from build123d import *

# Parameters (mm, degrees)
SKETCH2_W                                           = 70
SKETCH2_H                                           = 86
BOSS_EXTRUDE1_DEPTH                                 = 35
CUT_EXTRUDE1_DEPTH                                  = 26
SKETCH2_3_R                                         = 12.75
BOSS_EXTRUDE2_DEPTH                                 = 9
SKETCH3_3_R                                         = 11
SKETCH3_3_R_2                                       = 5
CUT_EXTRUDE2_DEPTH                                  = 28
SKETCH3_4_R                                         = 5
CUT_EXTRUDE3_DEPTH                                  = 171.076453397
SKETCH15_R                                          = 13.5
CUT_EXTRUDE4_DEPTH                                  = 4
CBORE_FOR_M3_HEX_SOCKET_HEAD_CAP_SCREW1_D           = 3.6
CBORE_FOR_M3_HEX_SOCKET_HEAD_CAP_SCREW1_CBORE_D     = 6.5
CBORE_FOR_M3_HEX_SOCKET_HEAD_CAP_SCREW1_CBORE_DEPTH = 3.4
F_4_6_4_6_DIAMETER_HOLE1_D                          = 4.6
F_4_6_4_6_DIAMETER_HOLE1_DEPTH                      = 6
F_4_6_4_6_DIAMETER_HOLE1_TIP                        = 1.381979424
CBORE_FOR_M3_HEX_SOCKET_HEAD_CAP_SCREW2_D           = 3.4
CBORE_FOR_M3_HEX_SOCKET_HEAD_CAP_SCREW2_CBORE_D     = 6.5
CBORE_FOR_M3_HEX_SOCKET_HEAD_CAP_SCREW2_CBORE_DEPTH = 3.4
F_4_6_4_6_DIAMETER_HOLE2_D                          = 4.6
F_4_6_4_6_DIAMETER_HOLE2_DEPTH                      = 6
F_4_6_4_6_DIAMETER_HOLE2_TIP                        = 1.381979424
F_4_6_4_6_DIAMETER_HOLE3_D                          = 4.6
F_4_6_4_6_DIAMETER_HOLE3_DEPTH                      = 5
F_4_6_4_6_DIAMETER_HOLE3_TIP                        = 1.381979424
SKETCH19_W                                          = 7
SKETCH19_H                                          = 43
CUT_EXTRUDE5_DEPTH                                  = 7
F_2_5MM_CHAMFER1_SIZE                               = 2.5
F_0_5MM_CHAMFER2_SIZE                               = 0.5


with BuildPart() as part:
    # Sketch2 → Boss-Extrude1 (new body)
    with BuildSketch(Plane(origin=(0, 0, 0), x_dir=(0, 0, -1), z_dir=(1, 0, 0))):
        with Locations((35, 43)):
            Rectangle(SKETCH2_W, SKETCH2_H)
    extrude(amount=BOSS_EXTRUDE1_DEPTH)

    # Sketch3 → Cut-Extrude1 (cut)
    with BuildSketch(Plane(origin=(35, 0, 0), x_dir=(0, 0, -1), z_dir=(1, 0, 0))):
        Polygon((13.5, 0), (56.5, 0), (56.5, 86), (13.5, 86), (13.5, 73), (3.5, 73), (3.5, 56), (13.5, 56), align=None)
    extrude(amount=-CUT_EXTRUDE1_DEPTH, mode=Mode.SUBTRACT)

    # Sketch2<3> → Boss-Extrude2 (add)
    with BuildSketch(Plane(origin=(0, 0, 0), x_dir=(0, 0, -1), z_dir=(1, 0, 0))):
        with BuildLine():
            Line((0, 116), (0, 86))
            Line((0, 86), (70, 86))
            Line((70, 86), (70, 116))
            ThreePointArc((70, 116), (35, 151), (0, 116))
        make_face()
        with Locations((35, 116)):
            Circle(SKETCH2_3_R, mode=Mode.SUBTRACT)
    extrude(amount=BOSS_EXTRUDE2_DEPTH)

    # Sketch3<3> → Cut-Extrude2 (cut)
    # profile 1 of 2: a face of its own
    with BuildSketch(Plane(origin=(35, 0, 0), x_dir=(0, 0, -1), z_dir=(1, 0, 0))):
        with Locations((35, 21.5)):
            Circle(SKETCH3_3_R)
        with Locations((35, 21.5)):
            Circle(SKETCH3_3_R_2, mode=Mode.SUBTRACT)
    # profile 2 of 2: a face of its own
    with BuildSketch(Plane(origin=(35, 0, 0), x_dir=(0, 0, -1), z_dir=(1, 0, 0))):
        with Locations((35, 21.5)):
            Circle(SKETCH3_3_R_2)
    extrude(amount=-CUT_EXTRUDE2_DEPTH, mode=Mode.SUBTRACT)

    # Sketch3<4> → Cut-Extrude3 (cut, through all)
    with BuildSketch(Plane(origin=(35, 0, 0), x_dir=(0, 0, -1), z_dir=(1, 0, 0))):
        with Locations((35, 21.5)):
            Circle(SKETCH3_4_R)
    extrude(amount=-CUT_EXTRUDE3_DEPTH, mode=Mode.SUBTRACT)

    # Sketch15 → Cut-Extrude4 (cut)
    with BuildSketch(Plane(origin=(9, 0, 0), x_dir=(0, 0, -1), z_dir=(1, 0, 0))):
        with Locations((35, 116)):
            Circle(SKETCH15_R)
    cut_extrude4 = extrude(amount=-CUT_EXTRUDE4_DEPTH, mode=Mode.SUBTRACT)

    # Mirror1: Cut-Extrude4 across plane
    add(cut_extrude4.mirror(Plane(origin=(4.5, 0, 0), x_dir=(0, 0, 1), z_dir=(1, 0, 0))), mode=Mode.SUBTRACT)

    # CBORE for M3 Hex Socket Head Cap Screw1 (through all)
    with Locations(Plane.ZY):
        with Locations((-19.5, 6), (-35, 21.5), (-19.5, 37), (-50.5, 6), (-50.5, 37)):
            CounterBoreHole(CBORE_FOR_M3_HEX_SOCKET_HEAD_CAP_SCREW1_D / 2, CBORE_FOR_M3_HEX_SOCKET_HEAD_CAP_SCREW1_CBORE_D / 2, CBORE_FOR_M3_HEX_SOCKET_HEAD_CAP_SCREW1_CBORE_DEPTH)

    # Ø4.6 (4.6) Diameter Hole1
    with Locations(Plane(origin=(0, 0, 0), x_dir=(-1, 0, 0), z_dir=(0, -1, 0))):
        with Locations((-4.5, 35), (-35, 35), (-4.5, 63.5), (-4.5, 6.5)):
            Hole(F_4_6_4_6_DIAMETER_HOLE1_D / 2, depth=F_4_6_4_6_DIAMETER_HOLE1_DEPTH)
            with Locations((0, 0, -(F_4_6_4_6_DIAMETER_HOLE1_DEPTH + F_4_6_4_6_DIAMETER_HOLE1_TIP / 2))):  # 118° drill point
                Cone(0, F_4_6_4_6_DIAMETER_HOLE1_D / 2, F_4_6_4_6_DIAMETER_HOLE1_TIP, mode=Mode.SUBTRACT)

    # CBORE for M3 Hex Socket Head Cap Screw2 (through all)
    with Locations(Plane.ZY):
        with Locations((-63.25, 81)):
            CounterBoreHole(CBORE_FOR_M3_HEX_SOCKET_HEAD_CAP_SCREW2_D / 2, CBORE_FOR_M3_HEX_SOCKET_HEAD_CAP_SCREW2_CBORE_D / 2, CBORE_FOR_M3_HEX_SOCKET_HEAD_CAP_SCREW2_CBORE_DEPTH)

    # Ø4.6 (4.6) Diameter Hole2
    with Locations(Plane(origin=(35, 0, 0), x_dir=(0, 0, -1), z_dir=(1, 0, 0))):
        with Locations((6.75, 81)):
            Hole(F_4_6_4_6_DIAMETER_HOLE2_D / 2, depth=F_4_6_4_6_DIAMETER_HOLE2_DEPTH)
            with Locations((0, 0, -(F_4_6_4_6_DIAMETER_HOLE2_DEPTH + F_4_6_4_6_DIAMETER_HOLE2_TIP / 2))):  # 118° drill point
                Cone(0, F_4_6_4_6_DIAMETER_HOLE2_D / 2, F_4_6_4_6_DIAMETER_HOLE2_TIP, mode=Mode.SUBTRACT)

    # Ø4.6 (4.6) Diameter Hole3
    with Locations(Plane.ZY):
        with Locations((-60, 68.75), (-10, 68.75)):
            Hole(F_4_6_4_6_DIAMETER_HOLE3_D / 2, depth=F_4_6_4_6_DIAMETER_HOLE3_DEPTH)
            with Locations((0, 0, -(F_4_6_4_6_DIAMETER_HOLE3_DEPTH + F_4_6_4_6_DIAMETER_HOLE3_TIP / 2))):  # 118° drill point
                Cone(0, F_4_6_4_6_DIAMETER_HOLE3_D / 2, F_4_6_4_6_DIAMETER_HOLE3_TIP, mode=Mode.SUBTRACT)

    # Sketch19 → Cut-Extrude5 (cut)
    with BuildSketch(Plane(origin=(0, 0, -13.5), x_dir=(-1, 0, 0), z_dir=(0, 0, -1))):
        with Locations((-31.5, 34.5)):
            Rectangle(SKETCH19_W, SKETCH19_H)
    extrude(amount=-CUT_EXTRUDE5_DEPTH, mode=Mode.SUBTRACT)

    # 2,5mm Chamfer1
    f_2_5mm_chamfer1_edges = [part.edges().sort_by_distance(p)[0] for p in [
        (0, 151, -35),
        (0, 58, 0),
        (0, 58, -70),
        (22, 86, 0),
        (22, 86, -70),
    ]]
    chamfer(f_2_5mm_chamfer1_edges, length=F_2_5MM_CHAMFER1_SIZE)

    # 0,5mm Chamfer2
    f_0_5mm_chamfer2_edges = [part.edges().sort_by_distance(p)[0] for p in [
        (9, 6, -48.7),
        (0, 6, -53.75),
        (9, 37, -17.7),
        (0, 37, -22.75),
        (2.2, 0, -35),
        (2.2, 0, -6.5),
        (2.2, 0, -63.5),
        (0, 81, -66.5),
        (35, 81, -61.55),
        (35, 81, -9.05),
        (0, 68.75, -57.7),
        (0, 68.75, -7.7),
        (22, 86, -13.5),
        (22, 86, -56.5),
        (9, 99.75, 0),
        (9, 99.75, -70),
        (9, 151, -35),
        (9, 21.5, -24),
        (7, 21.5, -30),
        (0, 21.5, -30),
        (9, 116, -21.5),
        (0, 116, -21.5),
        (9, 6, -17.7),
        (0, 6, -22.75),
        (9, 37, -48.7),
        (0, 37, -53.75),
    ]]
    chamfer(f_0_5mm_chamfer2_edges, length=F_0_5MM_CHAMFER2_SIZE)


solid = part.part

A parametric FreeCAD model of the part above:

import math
import FreeCAD as App
import Part
import Sketcher
Q = App.Units.Quantity


def edges_at(feature, points):
    """Names of the edges that pass closest to the given points."""
    edges = feature.Shape.Edges
    near = lambda p: min(range(len(edges)), key=lambda i: edges[i].distToShape(Part.Vertex(*p))[0])
    return sorted({f"Edge{near(p) + 1}" for p in points})


def add_polygon(sketch, points):
    """Adds a closed chain of lines whose ends are joined by coincident constraints."""
    first, n = sketch.GeometryCount, len(points)
    for a, b in zip(points, points[1:] + points[:1]):
        sketch.addGeometry(Part.LineSegment(App.Vector(*a, 0), App.Vector(*b, 0)), False)
    for i in range(n):
        sketch.addConstraint(Sketcher.Constraint("Coincident", first + i, 2, first + (i + 1) % n, 1))

doc = App.newDocument("Part")
body = doc.addObject("PartDesign::Body", "Body")

sketch1 = body.newObject("Sketcher::SketchObject", "Sketch")
sketch1.AttachmentSupport = (doc.getObject("YZ_Plane"), [""])
sketch1.MapMode = "FlatFace"
add_polygon(sketch1, [(86, 0), (0, 0), (0, -70), (86, -70)])
sketch1.addConstraint(Sketcher.Constraint("Horizontal", 0))
sketch1.addConstraint(Sketcher.Constraint("Vertical", 1))
sketch1.addConstraint(Sketcher.Constraint("Horizontal", 2))
sketch1.addConstraint(Sketcher.Constraint("Vertical", 3))
sketch1.addConstraint(Sketcher.Constraint("Coincident", 0, 2, -1, 1))
sketch1.addConstraint(Sketcher.Constraint("DistanceX", 0, 2, 0, 1, Q("86 mm")))
sketch1.addConstraint(Sketcher.Constraint("DistanceY", 1, 2, 1, 1, Q("70 mm")))
pad1 = body.newObject("PartDesign::Pad", "Pad")
pad1.Profile = sketch1
pad1.Length = 35

sketch2 = body.newObject("Sketcher::SketchObject", "Sketch001")
sketch2.AttachmentSupport = (doc.getObject("YZ_Plane"), [""])
sketch2.MapMode = "FlatFace"
sketch2.AttachmentOffset = App.Placement(App.Vector(0, 0, 35), App.Rotation())
add_polygon(sketch2, [(0, -14), (0, -56), (86, -56), (86, -14), (73, -14), (73, -4), (56, -4), (56, -14)])
sketch2.addConstraint(Sketcher.Constraint("Vertical", 0))
sketch2.addConstraint(Sketcher.Constraint("Horizontal", 1))
sketch2.addConstraint(Sketcher.Constraint("Vertical", 2))
sketch2.addConstraint(Sketcher.Constraint("Horizontal", 3))
sketch2.addConstraint(Sketcher.Constraint("Vertical", 4))
sketch2.addConstraint(Sketcher.Constraint("Horizontal", 5))
sketch2.addConstraint(Sketcher.Constraint("Vertical", 6))
sketch2.addConstraint(Sketcher.Constraint("Horizontal", 7))
sketch2.addConstraint(Sketcher.Constraint("PointOnObject", 0, 2, -2))
sketch2.addConstraint(Sketcher.Constraint("Horizontal", 3, 2, 6, 2))
sketch2.addConstraint(Sketcher.Constraint("DistanceX", 1, 1, 1, 2, Q("86 mm")))
sketch2.addConstraint(Sketcher.Constraint("DistanceX", 3, 2, 3, 1, Q("13 mm")))
sketch2.addConstraint(Sketcher.Constraint("DistanceX", 5, 2, 5, 1, Q("17 mm")))
sketch2.addConstraint(Sketcher.Constraint("DistanceY", 0, 2, 0, 1, Q("43 mm")))
sketch2.addConstraint(Sketcher.Constraint("DistanceY", 4, 1, 4, 2, Q("10 mm")))
sketch2.addConstraint(Sketcher.Constraint("DistanceY", 0, 2, -1, 1, Q("56.5 mm")))
pocket1 = body.newObject("PartDesign::Pocket", "Pocket")
pocket1.Profile = sketch2
pocket1.Length = 26

sketch3 = body.newObject("Sketcher::SketchObject", "Sketch002")
sketch3.AttachmentSupport = (doc.getObject("YZ_Plane"), [""])
sketch3.MapMode = "FlatFace"
sketch3.addGeometry(Part.LineSegment(App.Vector(116, 0, 0), App.Vector(86, 0, 0)), False)
sketch3.addGeometry(Part.LineSegment(App.Vector(86, 0, 0), App.Vector(86, -70, 0)), False)
sketch3.addGeometry(Part.LineSegment(App.Vector(86, -70, 0), App.Vector(116, -70, 0)), False)
sketch3.addGeometry(Part.ArcOfCircle(Part.Circle(App.Vector(116, -35, 0), App.Vector(0, 0, 1), 35), math.radians(-90), math.radians(90)), False)
sketch3.addGeometry(Part.Circle(App.Vector(116, -35, 0), App.Vector(0, 0, 1), 13), False)
sketch3.addConstraint(Sketcher.Constraint("Coincident", 0, 2, 1, 1))
sketch3.addConstraint(Sketcher.Constraint("Coincident", 1, 2, 2, 1))
sketch3.addConstraint(Sketcher.Constraint("Tangent", 2, 2, 3, 1))
sketch3.addConstraint(Sketcher.Constraint("Tangent", 3, 2, 0, 1))
sketch3.addConstraint(Sketcher.Constraint("Horizontal", 0))
sketch3.addConstraint(Sketcher.Constraint("Vertical", 1))
sketch3.addConstraint(Sketcher.Constraint("Horizontal", 2))
sketch3.addConstraint(Sketcher.Constraint("Coincident", 4, 3, 3, 3))
sketch3.addConstraint(Sketcher.Constraint("PointOnObject", 0, 2, -1))
sketch3.addConstraint(Sketcher.Constraint("Radius", 3, Q("35 mm")))
sketch3.addConstraint(Sketcher.Constraint("Diameter", 4, Q("25.5 mm")))
sketch3.addConstraint(Sketcher.Constraint("DistanceX", 0, 2, 0, 1, Q("30 mm")))
sketch3.addConstraint(Sketcher.Constraint("DistanceX", -1, 1, 3, 3, Q("116 mm")))
pad2 = body.newObject("PartDesign::Pad", "Pad001")
pad2.Profile = sketch3
pad2.Length = 9

sketch4 = body.newObject("Sketcher::SketchObject", "Sketch003")
sketch4.AttachmentSupport = (doc.getObject("YZ_Plane"), [""])
sketch4.MapMode = "FlatFace"
sketch4.AttachmentOffset = App.Placement(App.Vector(0, 0, 35), App.Rotation())
sketch4.addGeometry(Part.Circle(App.Vector(22, -35, 0), App.Vector(0, 0, 1), 11), False)
sketch4.addConstraint(Sketcher.Constraint("Diameter", 0, Q("22 mm")))
sketch4.addConstraint(Sketcher.Constraint("DistanceY", 0, 3, -1, 1, Q("35 mm")))
sketch4.addConstraint(Sketcher.Constraint("DistanceX", -1, 1, 0, 3, Q("21.5 mm")))
pocket2 = body.newObject("PartDesign::Pocket", "Pocket001")
pocket2.Profile = sketch4
pocket2.Length = 28

sketch5 = body.newObject("Sketcher::SketchObject", "Sketch004")
sketch5.AttachmentSupport = (doc.getObject("YZ_Plane"), [""])
sketch5.MapMode = "FlatFace"
sketch5.AttachmentOffset = App.Placement(App.Vector(0, 0, 35), App.Rotation())
sketch5.addGeometry(Part.Circle(App.Vector(22, -35, 0), App.Vector(0, 0, 1), 5), False)
sketch5.addConstraint(Sketcher.Constraint("Diameter", 0, Q("10 mm")))
sketch5.addConstraint(Sketcher.Constraint("DistanceY", 0, 3, -1, 1, Q("35 mm")))
sketch5.addConstraint(Sketcher.Constraint("DistanceX", -1, 1, 0, 3, Q("21.5 mm")))
pocket3 = body.newObject("PartDesign::Pocket", "Pocket002")
pocket3.Profile = sketch5
pocket3.Type = "ThroughAll"

sketch6 = body.newObject("Sketcher::SketchObject", "Sketch005")
sketch6.AttachmentSupport = (doc.getObject("YZ_Plane"), [""])
sketch6.MapMode = "FlatFace"
sketch6.AttachmentOffset = App.Placement(App.Vector(0, 0, 9), App.Rotation())
sketch6.addGeometry(Part.Circle(App.Vector(116, -35, 0), App.Vector(0, 0, 1), 14), False)
sketch6.addConstraint(Sketcher.Constraint("Diameter", 0, Q("27 mm")))
sketch6.addConstraint(Sketcher.Constraint("DistanceX", -1, 1, 0, 3, Q("116 mm")))
sketch6.addConstraint(Sketcher.Constraint("DistanceY", 0, 3, -1, 1, Q("35 mm")))
pocket4 = body.newObject("PartDesign::Pocket", "Pocket003")
pocket4.Profile = sketch6
pocket4.Length = 4
doc.recompute()

datumplane = body.newObject("PartDesign::Plane", "DatumPlane")
datumplane.AttachmentSupport = (doc.getObject("YZ_Plane"), [""])
datumplane.MapMode = "FlatFace"
datumplane.AttachmentOffset = App.Placement(App.Vector(0, 0, 4.5), App.Rotation())
mirrored = body.newObject("PartDesign::Mirrored", "Mirrored")
mirrored.Originals = [pocket4]
mirrored.MirrorPlane = (datumplane, [""])
body.Tip = mirrored

sketch7 = body.newObject("Sketcher::SketchObject", "Sketch006")
sketch7.AttachmentSupport = (doc.getObject("YZ_Plane"), [""])
sketch7.MapMode = "FlatFace"
sketch7.addGeometry(Part.Circle(App.Vector(6, -19.5, 0), App.Vector(0, 0, 1), 1.8), False)
sketch7.addGeometry(Part.Circle(App.Vector(21.5, -35, 0), App.Vector(0, 0, 1), 1.8), False)
sketch7.addGeometry(Part.Circle(App.Vector(37, -19.5, 0), App.Vector(0, 0, 1), 1.8), False)
sketch7.addGeometry(Part.Circle(App.Vector(6, -50.5, 0), App.Vector(0, 0, 1), 1.8), False)
sketch7.addGeometry(Part.Circle(App.Vector(37, -50.5, 0), App.Vector(0, 0, 1), 1.8), False)
sketch7.addConstraint(Sketcher.Constraint("Equal", 0, 1))
sketch7.addConstraint(Sketcher.Constraint("Equal", 1, 2))
sketch7.addConstraint(Sketcher.Constraint("Equal", 2, 3))
sketch7.addConstraint(Sketcher.Constraint("Equal", 3, 4))
sketch7.addConstraint(Sketcher.Constraint("Horizontal", 0, 3, 2, 3))
sketch7.addConstraint(Sketcher.Constraint("Horizontal", 3, 3, 4, 3))
sketch7.addConstraint(Sketcher.Constraint("Vertical", 0, 3, 3, 3))
sketch7.addConstraint(Sketcher.Constraint("Vertical", 2, 3, 4, 3))
sketch7.addConstraint(Sketcher.Constraint("Diameter", 0, Q("3.6 mm")))
sketch7.addConstraint(Sketcher.Constraint("DistanceX", -1, 1, 0, 3, Q("6 mm")))
sketch7.addConstraint(Sketcher.Constraint("DistanceY", 1, 3, -1, 1, Q("35 mm")))
sketch7.addConstraint(Sketcher.Constraint("DistanceX", -1, 1, 2, 3, Q("37 mm")))
sketch7.addConstraint(Sketcher.Constraint("DistanceY", 3, 3, 0, 3, Q("31 mm")))
sketch7.addConstraint(Sketcher.Constraint("DistanceY", 0, 3, -1, 1, Q("19.5 mm")))
sketch7.addConstraint(Sketcher.Constraint("DistanceX", -1, 1, 1, 3, Q("21.5 mm")))
doc.recompute()
hole = body.newObject("PartDesign::Hole", "Hole")
hole.Profile = sketch7
hole.ThreadType = "None"
hole.Diameter = 3.6
hole.DepthType = "ThroughAll"
hole.HoleCutType = "Counterbore"
hole.HoleCutDiameter = 6.5
hole.HoleCutDepth = 3.4
hole.Reversed = True

sketch8 = body.newObject("Sketcher::SketchObject", "Sketch007")
sketch8.AttachmentSupport = (doc.getObject("XZ_Plane"), [""])
sketch8.MapMode = "FlatFace"
sketch8.addGeometry(Part.Circle(App.Vector(4.5, -35, 0), App.Vector(0, 0, 1), 2.3), False)
sketch8.addGeometry(Part.Circle(App.Vector(35, -35, 0), App.Vector(0, 0, 1), 2.3), False)
sketch8.addGeometry(Part.Circle(App.Vector(4.5, -63.5, 0), App.Vector(0, 0, 1), 2.3), False)
sketch8.addGeometry(Part.Circle(App.Vector(4.5, -6.5, 0), App.Vector(0, 0, 1), 2.3), False)
sketch8.addConstraint(Sketcher.Constraint("Equal", 0, 1))
sketch8.addConstraint(Sketcher.Constraint("Equal", 1, 2))
sketch8.addConstraint(Sketcher.Constraint("Equal", 2, 3))
sketch8.addConstraint(Sketcher.Constraint("Horizontal", 0, 3, 1, 3))
sketch8.addConstraint(Sketcher.Constraint("Vertical", 0, 3, 2, 3))
sketch8.addConstraint(Sketcher.Constraint("Vertical", 2, 3, 3, 3))
sketch8.addConstraint(Sketcher.Constraint("Diameter", 0, Q("4.6 mm")))
sketch8.addConstraint(Sketcher.Constraint("DistanceY", 0, 3, -1, 1, Q("35 mm")))
sketch8.addConstraint(Sketcher.Constraint("DistanceX", -1, 1, 1, 3, Q("35 mm")))
sketch8.addConstraint(Sketcher.Constraint("DistanceY", 2, 3, 3, 3, Q("57 mm")))
sketch8.addConstraint(Sketcher.Constraint("DistanceX", -1, 1, 0, 3, Q("4.5 mm")))
sketch8.addConstraint(Sketcher.Constraint("DistanceY", 2, 3, -1, 1, Q("63.5 mm")))
doc.recompute()
hole2 = body.newObject("PartDesign::Hole", "Hole001")
hole2.Profile = sketch8
hole2.ThreadType = "None"
hole2.Diameter = 4.6
hole2.DepthType = "Dimension"
hole2.Depth = 6
hole2.DrillPoint = "Angled"
hole2.DrillPointAngle = 118

sketch9 = body.newObject("Sketcher::SketchObject", "Sketch008")
sketch9.AttachmentSupport = (doc.getObject("YZ_Plane"), [""])
sketch9.MapMode = "FlatFace"
sketch9.addGeometry(Part.Circle(App.Vector(81, -63.2, 0), App.Vector(0, 0, 1), 1.7), False)
sketch9.addConstraint(Sketcher.Constraint("Diameter", 0, Q("3.4 mm")))
sketch9.addConstraint(Sketcher.Constraint("DistanceX", -1, 1, 0, 3, Q("81 mm")))
sketch9.addConstraint(Sketcher.Constraint("DistanceY", 0, 3, -1, 1, Q("63.25 mm")))
doc.recompute()
hole3 = body.newObject("PartDesign::Hole", "Hole002")
hole3.Profile = sketch9
hole3.ThreadType = "None"
hole3.Diameter = 3.4
hole3.DepthType = "ThroughAll"
hole3.HoleCutType = "Counterbore"
hole3.HoleCutDiameter = 6.5
hole3.HoleCutDepth = 3.4
hole3.Reversed = True

sketch10 = body.newObject("Sketcher::SketchObject", "Sketch009")
sketch10.AttachmentSupport = (doc.getObject("YZ_Plane"), [""])
sketch10.MapMode = "FlatFace"
sketch10.AttachmentOffset = App.Placement(App.Vector(0, 0, 35), App.Rotation())
sketch10.addGeometry(Part.Circle(App.Vector(81, -6.8, 0), App.Vector(0, 0, 1), 2.3), False)
sketch10.addConstraint(Sketcher.Constraint("Diameter", 0, Q("4.6 mm")))
sketch10.addConstraint(Sketcher.Constraint("DistanceX", -1, 1, 0, 3, Q("81 mm")))
sketch10.addConstraint(Sketcher.Constraint("DistanceY", 0, 3, -1, 1, Q("6.75 mm")))
doc.recompute()
hole4 = body.newObject("PartDesign::Hole", "Hole003")
hole4.Profile = sketch10
hole4.ThreadType = "None"
hole4.Diameter = 4.6
hole4.DepthType = "Dimension"
hole4.Depth = 6
hole4.DrillPoint = "Angled"
hole4.DrillPointAngle = 118

sketch11 = body.newObject("Sketcher::SketchObject", "Sketch010")
sketch11.AttachmentSupport = (doc.getObject("YZ_Plane"), [""])
sketch11.MapMode = "FlatFace"
sketch11.addGeometry(Part.Circle(App.Vector(68.8, -60, 0), App.Vector(0, 0, 1), 2.3), False)
sketch11.addGeometry(Part.Circle(App.Vector(68.8, -10, 0), App.Vector(0, 0, 1), 2.3), False)
sketch11.addConstraint(Sketcher.Constraint("Equal", 0, 1))
sketch11.addConstraint(Sketcher.Constraint("Vertical", 0, 3, 1, 3))
sketch11.addConstraint(Sketcher.Constraint("Diameter", 0, Q("4.6 mm")))
sketch11.addConstraint(Sketcher.Constraint("DistanceY", 0, 3, -1, 1, Q("60 mm")))
sketch11.addConstraint(Sketcher.Constraint("DistanceY", 1, 3, -1, 1, Q("10 mm")))
sketch11.addConstraint(Sketcher.Constraint("DistanceX", -1, 1, 0, 3, Q("68.75 mm")))
doc.recompute()
hole5 = body.newObject("PartDesign::Hole", "Hole004")
hole5.Profile = sketch11
hole5.ThreadType = "None"
hole5.Diameter = 4.6
hole5.DepthType = "Dimension"
hole5.Depth = 5
hole5.DrillPoint = "Angled"
hole5.DrillPointAngle = 118
hole5.Reversed = True

sketch12 = body.newObject("Sketcher::SketchObject", "Sketch011")
sketch12.AttachmentSupport = (doc.getObject("XY_Plane"), [""])
sketch12.MapMode = "FlatFace"
sketch12.AttachmentOffset = App.Placement(App.Vector(0, 0, -13.5), App.Rotation())
add_polygon(sketch12, [(35, 56), (35, 13), (28, 13), (28, 56)])
sketch12.addConstraint(Sketcher.Constraint("Vertical", 0))
sketch12.addConstraint(Sketcher.Constraint("Horizontal", 1))
sketch12.addConstraint(Sketcher.Constraint("Vertical", 2))
sketch12.addConstraint(Sketcher.Constraint("Horizontal", 3))
sketch12.addConstraint(Sketcher.Constraint("DistanceX", 1, 2, 1, 1, Q("7 mm")))
sketch12.addConstraint(Sketcher.Constraint("DistanceY", 0, 2, 0, 1, Q("43 mm")))
sketch12.addConstraint(Sketcher.Constraint("DistanceX", -1, 1, 0, 2, Q("35 mm")))
sketch12.addConstraint(Sketcher.Constraint("DistanceY", -1, 1, 0, 2, Q("13 mm")))
pocket5 = body.newObject("PartDesign::Pocket", "Pocket004")
pocket5.Profile = sketch12
pocket5.Length = 7
pocket5.Reversed = True
doc.recompute()

chamfer = body.newObject("PartDesign::Chamfer", "Chamfer")
chamfer.Base = (pocket5, edges_at(pocket5, [
    (0, 151, -35),
    (0, 58, 0),
    (0, 58, -70),
    (22, 86, 0),
    (22, 86, -70),
]))
chamfer.Size = 2.5
doc.recompute()

chamfer2 = body.newObject("PartDesign::Chamfer", "Chamfer001")
chamfer2.Base = (chamfer, edges_at(chamfer, [
    (9, 6, -48.7),
    (0, 6, -53.75),
    (9, 37, -17.7),
    (0, 37, -22.75),
    (2.2, 0, -35),
    (2.2, 0, -6.5),
    (2.2, 0, -63.5),
    (0, 81, -66.5),
    (35, 81, -61.55),
    (35, 81, -9.05),
    (0, 68.75, -57.7),
    (0, 68.75, -7.7),
    (22, 86, -13.5),
    (22, 86, -56.5),
    (9, 99.75, 0),
    (9, 99.75, -70),
    (9, 151, -35),
    (9, 21.5, -24),
    (7, 21.5, -30),
    (0, 21.5, -30),
    (9, 116, -21.5),
    (0, 116, -21.5),
    (9, 6, -17.7),
    (0, 6, -22.75),
    (9, 37, -48.7),
    (0, 37, -53.75),
]))
chamfer2.Size = 0.5

doc.recompute()
